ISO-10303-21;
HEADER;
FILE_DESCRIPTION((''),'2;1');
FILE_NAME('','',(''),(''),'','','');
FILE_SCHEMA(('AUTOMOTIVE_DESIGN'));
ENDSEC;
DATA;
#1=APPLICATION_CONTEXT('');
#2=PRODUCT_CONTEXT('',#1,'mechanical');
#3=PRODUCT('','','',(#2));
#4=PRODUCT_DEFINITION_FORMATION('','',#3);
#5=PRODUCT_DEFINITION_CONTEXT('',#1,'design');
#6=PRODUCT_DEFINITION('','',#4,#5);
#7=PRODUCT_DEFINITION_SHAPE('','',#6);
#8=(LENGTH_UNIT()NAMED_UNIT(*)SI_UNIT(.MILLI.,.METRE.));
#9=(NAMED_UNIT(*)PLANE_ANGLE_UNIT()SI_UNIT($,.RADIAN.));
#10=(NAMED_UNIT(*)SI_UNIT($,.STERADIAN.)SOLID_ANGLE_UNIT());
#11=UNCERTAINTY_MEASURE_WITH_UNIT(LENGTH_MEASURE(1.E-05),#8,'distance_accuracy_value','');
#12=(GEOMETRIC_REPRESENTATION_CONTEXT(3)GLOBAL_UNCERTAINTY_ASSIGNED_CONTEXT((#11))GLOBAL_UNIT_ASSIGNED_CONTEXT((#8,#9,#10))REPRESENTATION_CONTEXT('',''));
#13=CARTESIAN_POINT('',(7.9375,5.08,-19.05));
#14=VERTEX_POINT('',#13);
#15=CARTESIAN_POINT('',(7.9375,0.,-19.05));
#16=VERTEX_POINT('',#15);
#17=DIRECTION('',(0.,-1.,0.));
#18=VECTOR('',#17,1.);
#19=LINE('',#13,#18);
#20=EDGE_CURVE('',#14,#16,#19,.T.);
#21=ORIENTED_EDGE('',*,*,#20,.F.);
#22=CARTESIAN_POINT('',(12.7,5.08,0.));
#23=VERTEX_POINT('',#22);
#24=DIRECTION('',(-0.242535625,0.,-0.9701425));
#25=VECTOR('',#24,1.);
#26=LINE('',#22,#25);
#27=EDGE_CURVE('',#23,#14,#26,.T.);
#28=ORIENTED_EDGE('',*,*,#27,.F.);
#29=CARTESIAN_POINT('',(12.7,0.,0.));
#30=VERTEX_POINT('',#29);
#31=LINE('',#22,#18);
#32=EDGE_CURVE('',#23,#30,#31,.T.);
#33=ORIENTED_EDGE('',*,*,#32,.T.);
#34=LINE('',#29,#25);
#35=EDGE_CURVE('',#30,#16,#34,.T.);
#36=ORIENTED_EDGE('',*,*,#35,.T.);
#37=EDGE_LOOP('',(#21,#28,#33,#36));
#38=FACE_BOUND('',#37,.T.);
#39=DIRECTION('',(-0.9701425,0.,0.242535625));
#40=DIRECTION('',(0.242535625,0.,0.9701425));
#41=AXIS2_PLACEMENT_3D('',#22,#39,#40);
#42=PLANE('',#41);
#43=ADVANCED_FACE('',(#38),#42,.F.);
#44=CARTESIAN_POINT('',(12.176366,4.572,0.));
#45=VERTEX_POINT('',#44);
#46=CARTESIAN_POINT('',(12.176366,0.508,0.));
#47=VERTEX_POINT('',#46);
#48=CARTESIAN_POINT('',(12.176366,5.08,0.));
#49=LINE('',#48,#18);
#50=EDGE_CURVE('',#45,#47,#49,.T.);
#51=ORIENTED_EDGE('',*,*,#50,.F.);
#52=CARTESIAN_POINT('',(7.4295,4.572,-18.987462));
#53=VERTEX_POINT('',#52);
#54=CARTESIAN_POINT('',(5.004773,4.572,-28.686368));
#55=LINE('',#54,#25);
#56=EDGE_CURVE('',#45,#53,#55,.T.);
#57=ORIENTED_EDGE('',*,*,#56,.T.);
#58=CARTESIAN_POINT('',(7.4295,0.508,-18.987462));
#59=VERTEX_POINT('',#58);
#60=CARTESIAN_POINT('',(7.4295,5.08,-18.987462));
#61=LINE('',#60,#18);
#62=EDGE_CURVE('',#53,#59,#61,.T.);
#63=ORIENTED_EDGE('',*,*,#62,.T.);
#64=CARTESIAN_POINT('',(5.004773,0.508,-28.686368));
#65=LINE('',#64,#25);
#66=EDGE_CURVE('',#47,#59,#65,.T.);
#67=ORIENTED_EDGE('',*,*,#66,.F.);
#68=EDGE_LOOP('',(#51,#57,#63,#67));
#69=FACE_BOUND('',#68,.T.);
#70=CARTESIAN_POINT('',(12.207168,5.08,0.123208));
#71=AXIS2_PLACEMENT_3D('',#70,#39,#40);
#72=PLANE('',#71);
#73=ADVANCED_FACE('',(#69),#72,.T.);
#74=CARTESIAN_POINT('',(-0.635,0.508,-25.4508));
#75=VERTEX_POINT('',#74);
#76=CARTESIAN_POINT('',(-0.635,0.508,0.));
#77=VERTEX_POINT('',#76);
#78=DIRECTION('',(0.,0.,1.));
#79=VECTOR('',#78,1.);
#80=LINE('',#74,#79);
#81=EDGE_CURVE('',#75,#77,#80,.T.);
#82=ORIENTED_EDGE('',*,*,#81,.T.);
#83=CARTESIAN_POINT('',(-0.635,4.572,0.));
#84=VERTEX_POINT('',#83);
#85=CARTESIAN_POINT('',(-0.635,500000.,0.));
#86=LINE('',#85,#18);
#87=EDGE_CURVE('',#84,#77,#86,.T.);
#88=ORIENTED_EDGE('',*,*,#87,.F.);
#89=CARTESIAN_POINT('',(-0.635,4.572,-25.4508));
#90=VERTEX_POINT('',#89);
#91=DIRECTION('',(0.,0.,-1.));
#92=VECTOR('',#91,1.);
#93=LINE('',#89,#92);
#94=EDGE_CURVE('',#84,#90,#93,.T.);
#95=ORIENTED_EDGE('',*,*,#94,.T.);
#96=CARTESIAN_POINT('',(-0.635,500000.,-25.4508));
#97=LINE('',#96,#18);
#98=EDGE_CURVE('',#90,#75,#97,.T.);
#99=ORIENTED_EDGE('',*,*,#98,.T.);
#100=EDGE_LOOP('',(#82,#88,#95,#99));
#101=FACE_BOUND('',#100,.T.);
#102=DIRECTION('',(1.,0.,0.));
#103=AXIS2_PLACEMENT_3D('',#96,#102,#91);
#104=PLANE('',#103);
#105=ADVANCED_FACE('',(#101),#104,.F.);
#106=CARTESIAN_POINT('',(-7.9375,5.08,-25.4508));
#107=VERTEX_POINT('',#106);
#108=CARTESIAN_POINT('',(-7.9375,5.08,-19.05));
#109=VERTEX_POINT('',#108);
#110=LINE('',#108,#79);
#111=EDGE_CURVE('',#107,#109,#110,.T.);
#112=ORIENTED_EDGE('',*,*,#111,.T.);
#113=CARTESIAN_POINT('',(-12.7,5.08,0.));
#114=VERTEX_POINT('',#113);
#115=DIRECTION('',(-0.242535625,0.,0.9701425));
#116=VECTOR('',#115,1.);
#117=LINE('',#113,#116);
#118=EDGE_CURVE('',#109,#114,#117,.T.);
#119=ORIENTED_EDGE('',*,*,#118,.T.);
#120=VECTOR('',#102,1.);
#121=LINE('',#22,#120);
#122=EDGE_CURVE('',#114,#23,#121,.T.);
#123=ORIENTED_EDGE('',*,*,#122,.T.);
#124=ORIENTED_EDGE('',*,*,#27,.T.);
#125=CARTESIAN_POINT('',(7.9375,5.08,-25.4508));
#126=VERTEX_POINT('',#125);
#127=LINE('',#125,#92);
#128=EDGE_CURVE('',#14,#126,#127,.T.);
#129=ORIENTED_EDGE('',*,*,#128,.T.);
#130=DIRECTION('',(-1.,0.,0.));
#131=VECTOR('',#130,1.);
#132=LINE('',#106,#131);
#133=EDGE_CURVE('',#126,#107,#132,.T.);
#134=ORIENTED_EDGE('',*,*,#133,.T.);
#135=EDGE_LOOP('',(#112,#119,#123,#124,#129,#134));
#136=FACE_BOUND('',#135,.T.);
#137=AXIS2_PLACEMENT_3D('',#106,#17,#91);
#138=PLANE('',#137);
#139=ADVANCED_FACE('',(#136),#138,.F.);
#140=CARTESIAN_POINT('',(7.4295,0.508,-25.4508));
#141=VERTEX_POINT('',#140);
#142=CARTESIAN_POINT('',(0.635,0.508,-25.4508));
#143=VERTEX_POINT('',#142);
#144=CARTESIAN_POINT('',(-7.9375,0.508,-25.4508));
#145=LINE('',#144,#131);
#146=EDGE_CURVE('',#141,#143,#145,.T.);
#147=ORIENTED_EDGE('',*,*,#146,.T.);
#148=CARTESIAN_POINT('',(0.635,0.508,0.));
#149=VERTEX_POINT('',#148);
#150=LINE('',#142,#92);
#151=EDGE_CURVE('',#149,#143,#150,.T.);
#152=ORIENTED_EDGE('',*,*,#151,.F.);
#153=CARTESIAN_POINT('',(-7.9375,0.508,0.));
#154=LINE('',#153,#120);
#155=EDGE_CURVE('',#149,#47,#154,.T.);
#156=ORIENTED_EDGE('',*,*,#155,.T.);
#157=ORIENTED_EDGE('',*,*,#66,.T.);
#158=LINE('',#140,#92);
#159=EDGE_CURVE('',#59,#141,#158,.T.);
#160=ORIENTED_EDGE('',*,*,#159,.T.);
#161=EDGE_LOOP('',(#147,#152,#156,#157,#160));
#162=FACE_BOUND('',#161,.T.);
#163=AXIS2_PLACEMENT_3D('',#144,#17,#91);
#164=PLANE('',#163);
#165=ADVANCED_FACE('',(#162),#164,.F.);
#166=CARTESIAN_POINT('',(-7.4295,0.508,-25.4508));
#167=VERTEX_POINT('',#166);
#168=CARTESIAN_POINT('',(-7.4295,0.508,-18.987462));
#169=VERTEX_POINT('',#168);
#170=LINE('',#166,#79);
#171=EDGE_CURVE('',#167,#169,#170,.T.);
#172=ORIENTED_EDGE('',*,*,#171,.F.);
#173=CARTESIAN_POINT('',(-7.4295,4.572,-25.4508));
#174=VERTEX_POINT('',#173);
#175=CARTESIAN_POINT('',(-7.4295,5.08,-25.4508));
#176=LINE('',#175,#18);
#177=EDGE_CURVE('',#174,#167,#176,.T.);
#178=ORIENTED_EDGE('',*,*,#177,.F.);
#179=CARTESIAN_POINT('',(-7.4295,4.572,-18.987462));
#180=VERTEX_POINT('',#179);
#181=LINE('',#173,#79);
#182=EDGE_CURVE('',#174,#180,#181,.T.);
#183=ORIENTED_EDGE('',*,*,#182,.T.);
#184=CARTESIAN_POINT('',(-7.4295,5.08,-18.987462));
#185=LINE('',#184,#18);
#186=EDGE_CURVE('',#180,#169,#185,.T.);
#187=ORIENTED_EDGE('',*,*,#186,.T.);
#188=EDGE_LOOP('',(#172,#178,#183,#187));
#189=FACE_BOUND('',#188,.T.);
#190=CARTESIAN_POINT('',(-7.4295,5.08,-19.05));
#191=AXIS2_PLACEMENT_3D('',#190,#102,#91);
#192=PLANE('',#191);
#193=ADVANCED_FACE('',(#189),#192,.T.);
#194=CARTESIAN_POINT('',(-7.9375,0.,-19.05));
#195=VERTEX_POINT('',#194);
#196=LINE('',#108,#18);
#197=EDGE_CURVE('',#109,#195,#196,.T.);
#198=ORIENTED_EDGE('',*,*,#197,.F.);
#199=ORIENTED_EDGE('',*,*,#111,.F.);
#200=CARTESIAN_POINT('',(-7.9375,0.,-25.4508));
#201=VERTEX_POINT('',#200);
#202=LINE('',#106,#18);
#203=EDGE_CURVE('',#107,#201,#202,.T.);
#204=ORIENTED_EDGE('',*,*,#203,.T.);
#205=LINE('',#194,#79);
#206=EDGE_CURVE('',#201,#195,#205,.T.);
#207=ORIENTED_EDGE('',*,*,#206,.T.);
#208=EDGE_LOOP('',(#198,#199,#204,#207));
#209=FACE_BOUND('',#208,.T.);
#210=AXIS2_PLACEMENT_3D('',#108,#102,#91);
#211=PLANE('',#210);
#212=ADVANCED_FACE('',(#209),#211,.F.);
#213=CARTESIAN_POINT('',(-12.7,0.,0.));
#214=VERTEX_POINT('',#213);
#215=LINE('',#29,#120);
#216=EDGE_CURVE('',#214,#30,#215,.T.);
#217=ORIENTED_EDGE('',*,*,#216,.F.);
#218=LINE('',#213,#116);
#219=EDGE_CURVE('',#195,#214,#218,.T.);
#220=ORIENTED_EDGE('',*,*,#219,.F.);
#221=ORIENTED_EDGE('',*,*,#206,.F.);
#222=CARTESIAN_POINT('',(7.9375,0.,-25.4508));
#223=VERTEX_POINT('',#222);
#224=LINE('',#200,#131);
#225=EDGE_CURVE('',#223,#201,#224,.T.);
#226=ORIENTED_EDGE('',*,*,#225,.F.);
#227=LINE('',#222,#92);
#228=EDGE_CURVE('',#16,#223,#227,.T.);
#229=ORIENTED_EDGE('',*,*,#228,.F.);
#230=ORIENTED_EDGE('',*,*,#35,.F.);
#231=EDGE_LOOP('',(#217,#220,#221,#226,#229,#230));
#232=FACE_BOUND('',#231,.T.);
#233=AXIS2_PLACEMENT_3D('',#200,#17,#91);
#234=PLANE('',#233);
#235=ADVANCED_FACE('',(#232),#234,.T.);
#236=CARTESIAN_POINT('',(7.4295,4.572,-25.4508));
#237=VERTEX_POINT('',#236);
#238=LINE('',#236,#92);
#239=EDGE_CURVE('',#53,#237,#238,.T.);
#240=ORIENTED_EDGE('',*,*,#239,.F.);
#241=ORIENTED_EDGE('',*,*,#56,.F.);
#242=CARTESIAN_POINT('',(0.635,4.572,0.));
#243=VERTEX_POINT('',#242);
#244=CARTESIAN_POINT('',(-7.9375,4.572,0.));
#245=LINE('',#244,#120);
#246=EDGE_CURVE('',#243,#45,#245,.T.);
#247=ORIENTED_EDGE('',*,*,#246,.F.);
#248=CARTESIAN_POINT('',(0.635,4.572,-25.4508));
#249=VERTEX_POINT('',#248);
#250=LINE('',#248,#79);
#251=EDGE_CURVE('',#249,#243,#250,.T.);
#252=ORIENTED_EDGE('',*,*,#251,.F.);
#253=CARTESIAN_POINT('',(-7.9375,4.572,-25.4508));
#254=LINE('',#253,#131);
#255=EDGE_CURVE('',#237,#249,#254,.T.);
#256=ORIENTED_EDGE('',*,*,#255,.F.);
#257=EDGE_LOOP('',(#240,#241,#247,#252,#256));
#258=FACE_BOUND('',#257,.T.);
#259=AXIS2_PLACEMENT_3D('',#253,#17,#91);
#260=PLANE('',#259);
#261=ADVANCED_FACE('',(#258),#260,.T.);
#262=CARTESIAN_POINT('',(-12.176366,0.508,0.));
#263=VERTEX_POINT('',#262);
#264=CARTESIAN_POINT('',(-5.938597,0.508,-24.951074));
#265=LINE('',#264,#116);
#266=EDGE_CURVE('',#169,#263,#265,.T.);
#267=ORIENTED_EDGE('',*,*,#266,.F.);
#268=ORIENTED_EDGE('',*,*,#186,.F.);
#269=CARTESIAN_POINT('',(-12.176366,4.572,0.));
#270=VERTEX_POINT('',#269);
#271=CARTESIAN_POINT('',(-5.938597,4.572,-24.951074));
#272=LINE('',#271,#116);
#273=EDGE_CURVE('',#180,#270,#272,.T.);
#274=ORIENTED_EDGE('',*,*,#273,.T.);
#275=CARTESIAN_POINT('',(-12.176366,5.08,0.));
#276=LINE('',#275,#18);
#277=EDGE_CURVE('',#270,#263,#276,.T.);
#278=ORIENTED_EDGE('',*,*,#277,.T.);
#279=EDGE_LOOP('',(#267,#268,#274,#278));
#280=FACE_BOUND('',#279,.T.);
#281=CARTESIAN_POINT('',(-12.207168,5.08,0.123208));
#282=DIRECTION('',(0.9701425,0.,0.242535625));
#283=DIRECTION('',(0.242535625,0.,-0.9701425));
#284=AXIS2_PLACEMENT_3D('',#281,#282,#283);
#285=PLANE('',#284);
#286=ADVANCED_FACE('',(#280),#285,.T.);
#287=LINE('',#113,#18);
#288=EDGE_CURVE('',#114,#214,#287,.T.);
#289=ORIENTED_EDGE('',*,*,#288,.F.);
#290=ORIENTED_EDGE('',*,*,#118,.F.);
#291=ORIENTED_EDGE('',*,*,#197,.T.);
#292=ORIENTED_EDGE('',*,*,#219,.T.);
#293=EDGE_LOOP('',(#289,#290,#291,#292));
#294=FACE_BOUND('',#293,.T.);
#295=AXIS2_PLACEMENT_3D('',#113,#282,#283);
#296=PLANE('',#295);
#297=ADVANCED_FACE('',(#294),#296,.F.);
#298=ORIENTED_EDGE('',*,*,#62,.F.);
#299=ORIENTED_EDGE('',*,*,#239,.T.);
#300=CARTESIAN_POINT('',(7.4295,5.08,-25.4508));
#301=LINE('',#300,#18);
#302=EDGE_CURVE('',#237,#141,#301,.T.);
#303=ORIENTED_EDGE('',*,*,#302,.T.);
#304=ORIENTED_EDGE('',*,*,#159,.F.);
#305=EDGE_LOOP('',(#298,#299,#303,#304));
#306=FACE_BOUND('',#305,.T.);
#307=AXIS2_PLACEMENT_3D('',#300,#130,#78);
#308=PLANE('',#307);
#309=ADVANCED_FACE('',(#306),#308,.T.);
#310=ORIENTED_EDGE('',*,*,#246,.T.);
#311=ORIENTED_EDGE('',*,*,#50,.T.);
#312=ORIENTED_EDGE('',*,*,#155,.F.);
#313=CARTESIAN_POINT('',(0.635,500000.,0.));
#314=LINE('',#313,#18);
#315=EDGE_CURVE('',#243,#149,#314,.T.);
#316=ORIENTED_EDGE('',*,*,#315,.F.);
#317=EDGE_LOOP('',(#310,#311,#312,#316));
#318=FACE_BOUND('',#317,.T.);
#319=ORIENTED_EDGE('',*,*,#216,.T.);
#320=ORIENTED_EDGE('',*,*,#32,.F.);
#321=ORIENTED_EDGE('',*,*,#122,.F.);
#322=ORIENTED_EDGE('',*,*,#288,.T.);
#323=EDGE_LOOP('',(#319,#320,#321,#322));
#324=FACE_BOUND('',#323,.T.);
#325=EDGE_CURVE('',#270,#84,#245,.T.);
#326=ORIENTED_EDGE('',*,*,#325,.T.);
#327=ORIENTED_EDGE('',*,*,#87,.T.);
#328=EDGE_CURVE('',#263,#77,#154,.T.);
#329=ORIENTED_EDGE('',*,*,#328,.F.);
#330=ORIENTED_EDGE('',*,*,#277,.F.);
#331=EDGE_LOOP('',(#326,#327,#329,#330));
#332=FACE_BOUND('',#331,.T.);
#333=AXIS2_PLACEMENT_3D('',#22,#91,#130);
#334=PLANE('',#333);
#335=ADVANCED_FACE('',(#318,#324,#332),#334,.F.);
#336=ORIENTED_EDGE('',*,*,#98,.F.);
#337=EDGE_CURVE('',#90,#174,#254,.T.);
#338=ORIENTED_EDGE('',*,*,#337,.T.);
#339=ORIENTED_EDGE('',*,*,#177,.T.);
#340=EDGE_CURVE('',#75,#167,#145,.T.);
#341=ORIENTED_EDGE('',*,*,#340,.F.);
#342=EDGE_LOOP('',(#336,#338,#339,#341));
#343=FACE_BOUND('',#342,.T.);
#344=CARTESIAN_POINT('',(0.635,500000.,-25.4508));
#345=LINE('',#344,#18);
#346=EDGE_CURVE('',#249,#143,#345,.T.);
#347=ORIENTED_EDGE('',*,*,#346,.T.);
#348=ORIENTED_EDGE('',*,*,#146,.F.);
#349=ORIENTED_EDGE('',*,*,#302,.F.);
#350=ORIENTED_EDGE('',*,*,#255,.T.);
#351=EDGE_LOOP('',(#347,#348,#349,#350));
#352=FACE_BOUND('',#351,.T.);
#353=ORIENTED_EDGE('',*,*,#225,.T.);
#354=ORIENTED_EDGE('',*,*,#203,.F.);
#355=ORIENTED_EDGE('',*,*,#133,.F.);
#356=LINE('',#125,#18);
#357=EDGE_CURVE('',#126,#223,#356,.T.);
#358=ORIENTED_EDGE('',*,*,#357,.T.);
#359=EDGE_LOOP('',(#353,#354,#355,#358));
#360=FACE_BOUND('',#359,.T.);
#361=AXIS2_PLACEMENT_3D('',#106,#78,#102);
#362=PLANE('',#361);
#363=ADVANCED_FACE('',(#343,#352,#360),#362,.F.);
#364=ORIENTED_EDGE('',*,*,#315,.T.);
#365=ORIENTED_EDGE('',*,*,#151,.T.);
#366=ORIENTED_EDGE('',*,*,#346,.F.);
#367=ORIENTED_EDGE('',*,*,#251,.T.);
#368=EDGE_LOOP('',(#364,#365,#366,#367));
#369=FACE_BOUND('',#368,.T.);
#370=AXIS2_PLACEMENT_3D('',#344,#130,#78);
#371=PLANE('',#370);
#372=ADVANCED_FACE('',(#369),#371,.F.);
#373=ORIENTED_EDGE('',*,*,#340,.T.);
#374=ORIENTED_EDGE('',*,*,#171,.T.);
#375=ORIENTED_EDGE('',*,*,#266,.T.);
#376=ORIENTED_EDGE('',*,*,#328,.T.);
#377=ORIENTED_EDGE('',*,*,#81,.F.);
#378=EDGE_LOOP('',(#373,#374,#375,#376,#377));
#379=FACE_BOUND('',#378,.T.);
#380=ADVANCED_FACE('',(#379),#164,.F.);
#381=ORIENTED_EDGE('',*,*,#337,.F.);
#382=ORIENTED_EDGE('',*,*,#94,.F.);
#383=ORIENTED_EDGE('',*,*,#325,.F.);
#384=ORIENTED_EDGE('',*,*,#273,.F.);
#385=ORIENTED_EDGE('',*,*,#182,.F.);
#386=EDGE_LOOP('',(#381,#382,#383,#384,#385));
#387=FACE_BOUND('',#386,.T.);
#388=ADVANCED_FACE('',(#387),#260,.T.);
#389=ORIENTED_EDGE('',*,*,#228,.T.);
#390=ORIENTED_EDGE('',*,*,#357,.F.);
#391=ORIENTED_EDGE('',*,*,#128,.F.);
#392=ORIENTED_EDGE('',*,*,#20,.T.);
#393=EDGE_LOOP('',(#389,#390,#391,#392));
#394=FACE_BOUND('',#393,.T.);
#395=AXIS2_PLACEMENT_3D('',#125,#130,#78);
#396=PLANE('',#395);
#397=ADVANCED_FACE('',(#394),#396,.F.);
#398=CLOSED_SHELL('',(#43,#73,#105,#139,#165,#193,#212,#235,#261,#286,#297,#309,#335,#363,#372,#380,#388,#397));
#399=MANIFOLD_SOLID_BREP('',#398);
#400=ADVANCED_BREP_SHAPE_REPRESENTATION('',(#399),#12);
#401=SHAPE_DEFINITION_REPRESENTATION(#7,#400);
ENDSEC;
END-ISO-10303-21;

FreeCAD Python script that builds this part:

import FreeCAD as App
import Part
import Sketcher
Q = App.Units.Quantity


def faces_at(feature, points):
    """Names of the faces that lie closest to the given points."""
    faces = feature.Shape.Faces
    near = lambda p: min(range(len(faces)), key=lambda i: faces[i].distToShape(Part.Vertex(*p))[0])
    return sorted({f"Face{near(p) + 1}" for p in points})

doc = App.newDocument("Part")
body = doc.addObject("PartDesign::Body", "Body")

# Sketch on XZ plane
sketch1 = body.newObject("Sketcher::SketchObject", "Sketch")
sketch1.AttachmentSupport = (doc.getObject("XZ_Plane"), [""])
sketch1.MapMode = "FlatFace"
sketch1.addGeometry([
    Part.LineSegment(App.Vector(-12.7, 0, 0), App.Vector(12.7, 0, 0)),  # 0
    Part.LineSegment(App.Vector(12.7, 0, 0), App.Vector(7.9375, -19.05, 0)),  # 1
    Part.LineSegment(App.Vector(7.9375, -19.05, 0), App.Vector(7.9375, -25.4508, 0)),  # 2
    Part.LineSegment(App.Vector(7.9375, -25.4508, 0), App.Vector(-7.9375, -25.4508, 0)),  # 3
    Part.LineSegment(App.Vector(-7.9375, -25.4508, 0), App.Vector(-7.9375, -19.05, 0)),  # 4
    Part.LineSegment(App.Vector(-7.9375, -19.05, 0), App.Vector(-12.7, 0, 0)),  # 5
], False)
sketch1.addConstraint([
    Sketcher.Constraint("Coincident", 0, 2, 1, 1),
    Sketcher.Constraint("Coincident", 1, 2, 2, 1),
    Sketcher.Constraint("Coincident", 2, 2, 3, 1),
    Sketcher.Constraint("Coincident", 3, 2, 4, 1),
    Sketcher.Constraint("Coincident", 4, 2, 5, 1),
    Sketcher.Constraint("Coincident", 5, 2, 0, 1),
    Sketcher.Constraint("Horizontal", 0),
    Sketcher.Constraint("Vertical", 2),
    Sketcher.Constraint("Horizontal", 3),
    Sketcher.Constraint("Vertical", 4),
    Sketcher.Constraint("Symmetric", 0, 2, 5, 2, -1, 1),
    Sketcher.Constraint("Symmetric", 1, 2, 4, 2, -2),
    Sketcher.Constraint("DistanceX", 0, 1, 0, 2, Q("1 in")),
    Sketcher.Constraint("DistanceX", 3, 2, 3, 1, Q("0.625 in")),
    Sketcher.Constraint("DistanceY", 2, 2, 2, 1, Q("0.252 in")),
    Sketcher.Constraint("DistanceY", 1, 2, -1, 1, Q("0.75 in")),
])
pad1 = body.newObject("PartDesign::Pad", "Pad")
pad1.Profile = sketch1
pad1.Length = Q("0.2 in")
pad1.Reversed = True
doc.recompute()

thickness = body.newObject("PartDesign::Thickness", "Thickness")
thickness.Base = (pad1, faces_at(pad1, [(0, 2.54, -25.451), (0, 2.54, 0)]))
thickness.Value = Q("0.02 in")
thickness.Reversed = True
thickness.Join = "Intersection"

# Sketch on XZ plane
sketch2 = body.newObject("Sketcher::SketchObject", "Sketch001")
sketch2.AttachmentSupport = (doc.getObject("XZ_Plane"), [""])
sketch2.MapMode = "FlatFace"
sketch2.AttachmentOffset = App.Placement(App.Vector(0, 0, -0.02 * 25.4), App.Rotation())
sketch2.addGeometry([
    Part.LineSegment(App.Vector(0.635, 0, 0), App.Vector(0.635, -25.4508, 0)),
    Part.LineSegment(App.Vector(0.635, -25.4508, 0), App.Vector(-0.635, -25.4508, 0)),
    Part.LineSegment(App.Vector(-0.635, -25.4508, 0), App.Vector(-0.635, 0, 0)),
    Part.LineSegment(App.Vector(-0.635, 0, 0), App.Vector(0.635, 0, 0)),
], False)
sketch2.addConstraint([
    Sketcher.Constraint("Coincident", 0, 2, 1, 1),
    Sketcher.Constraint("Coincident", 1, 2, 2, 1),
    Sketcher.Constraint("Coincident", 2, 2, 3, 1),
    Sketcher.Constraint("Coincident", 3, 2, 0, 1),
    Sketcher.Constraint("Vertical", 0),
    Sketcher.Constraint("Horizontal", 1),
    Sketcher.Constraint("Vertical", 2),
    Sketcher.Constraint("Horizontal", 3),
    Sketcher.Constraint("Symmetric", 2, 2, 3, 2, -1, 1),
    Sketcher.Constraint("DistanceX", 1, 2, 1, 1, Q("0.05 in")),
    Sketcher.Constraint("DistanceY", 0, 2, 0, 1, Q("1.002 in")),
])
pad2 = body.newObject("PartDesign::Pad", "Pad001")
pad2.Profile = sketch2
pad2.Type = "UpToFirst"
pad2.Reversed = True

doc.recompute()
